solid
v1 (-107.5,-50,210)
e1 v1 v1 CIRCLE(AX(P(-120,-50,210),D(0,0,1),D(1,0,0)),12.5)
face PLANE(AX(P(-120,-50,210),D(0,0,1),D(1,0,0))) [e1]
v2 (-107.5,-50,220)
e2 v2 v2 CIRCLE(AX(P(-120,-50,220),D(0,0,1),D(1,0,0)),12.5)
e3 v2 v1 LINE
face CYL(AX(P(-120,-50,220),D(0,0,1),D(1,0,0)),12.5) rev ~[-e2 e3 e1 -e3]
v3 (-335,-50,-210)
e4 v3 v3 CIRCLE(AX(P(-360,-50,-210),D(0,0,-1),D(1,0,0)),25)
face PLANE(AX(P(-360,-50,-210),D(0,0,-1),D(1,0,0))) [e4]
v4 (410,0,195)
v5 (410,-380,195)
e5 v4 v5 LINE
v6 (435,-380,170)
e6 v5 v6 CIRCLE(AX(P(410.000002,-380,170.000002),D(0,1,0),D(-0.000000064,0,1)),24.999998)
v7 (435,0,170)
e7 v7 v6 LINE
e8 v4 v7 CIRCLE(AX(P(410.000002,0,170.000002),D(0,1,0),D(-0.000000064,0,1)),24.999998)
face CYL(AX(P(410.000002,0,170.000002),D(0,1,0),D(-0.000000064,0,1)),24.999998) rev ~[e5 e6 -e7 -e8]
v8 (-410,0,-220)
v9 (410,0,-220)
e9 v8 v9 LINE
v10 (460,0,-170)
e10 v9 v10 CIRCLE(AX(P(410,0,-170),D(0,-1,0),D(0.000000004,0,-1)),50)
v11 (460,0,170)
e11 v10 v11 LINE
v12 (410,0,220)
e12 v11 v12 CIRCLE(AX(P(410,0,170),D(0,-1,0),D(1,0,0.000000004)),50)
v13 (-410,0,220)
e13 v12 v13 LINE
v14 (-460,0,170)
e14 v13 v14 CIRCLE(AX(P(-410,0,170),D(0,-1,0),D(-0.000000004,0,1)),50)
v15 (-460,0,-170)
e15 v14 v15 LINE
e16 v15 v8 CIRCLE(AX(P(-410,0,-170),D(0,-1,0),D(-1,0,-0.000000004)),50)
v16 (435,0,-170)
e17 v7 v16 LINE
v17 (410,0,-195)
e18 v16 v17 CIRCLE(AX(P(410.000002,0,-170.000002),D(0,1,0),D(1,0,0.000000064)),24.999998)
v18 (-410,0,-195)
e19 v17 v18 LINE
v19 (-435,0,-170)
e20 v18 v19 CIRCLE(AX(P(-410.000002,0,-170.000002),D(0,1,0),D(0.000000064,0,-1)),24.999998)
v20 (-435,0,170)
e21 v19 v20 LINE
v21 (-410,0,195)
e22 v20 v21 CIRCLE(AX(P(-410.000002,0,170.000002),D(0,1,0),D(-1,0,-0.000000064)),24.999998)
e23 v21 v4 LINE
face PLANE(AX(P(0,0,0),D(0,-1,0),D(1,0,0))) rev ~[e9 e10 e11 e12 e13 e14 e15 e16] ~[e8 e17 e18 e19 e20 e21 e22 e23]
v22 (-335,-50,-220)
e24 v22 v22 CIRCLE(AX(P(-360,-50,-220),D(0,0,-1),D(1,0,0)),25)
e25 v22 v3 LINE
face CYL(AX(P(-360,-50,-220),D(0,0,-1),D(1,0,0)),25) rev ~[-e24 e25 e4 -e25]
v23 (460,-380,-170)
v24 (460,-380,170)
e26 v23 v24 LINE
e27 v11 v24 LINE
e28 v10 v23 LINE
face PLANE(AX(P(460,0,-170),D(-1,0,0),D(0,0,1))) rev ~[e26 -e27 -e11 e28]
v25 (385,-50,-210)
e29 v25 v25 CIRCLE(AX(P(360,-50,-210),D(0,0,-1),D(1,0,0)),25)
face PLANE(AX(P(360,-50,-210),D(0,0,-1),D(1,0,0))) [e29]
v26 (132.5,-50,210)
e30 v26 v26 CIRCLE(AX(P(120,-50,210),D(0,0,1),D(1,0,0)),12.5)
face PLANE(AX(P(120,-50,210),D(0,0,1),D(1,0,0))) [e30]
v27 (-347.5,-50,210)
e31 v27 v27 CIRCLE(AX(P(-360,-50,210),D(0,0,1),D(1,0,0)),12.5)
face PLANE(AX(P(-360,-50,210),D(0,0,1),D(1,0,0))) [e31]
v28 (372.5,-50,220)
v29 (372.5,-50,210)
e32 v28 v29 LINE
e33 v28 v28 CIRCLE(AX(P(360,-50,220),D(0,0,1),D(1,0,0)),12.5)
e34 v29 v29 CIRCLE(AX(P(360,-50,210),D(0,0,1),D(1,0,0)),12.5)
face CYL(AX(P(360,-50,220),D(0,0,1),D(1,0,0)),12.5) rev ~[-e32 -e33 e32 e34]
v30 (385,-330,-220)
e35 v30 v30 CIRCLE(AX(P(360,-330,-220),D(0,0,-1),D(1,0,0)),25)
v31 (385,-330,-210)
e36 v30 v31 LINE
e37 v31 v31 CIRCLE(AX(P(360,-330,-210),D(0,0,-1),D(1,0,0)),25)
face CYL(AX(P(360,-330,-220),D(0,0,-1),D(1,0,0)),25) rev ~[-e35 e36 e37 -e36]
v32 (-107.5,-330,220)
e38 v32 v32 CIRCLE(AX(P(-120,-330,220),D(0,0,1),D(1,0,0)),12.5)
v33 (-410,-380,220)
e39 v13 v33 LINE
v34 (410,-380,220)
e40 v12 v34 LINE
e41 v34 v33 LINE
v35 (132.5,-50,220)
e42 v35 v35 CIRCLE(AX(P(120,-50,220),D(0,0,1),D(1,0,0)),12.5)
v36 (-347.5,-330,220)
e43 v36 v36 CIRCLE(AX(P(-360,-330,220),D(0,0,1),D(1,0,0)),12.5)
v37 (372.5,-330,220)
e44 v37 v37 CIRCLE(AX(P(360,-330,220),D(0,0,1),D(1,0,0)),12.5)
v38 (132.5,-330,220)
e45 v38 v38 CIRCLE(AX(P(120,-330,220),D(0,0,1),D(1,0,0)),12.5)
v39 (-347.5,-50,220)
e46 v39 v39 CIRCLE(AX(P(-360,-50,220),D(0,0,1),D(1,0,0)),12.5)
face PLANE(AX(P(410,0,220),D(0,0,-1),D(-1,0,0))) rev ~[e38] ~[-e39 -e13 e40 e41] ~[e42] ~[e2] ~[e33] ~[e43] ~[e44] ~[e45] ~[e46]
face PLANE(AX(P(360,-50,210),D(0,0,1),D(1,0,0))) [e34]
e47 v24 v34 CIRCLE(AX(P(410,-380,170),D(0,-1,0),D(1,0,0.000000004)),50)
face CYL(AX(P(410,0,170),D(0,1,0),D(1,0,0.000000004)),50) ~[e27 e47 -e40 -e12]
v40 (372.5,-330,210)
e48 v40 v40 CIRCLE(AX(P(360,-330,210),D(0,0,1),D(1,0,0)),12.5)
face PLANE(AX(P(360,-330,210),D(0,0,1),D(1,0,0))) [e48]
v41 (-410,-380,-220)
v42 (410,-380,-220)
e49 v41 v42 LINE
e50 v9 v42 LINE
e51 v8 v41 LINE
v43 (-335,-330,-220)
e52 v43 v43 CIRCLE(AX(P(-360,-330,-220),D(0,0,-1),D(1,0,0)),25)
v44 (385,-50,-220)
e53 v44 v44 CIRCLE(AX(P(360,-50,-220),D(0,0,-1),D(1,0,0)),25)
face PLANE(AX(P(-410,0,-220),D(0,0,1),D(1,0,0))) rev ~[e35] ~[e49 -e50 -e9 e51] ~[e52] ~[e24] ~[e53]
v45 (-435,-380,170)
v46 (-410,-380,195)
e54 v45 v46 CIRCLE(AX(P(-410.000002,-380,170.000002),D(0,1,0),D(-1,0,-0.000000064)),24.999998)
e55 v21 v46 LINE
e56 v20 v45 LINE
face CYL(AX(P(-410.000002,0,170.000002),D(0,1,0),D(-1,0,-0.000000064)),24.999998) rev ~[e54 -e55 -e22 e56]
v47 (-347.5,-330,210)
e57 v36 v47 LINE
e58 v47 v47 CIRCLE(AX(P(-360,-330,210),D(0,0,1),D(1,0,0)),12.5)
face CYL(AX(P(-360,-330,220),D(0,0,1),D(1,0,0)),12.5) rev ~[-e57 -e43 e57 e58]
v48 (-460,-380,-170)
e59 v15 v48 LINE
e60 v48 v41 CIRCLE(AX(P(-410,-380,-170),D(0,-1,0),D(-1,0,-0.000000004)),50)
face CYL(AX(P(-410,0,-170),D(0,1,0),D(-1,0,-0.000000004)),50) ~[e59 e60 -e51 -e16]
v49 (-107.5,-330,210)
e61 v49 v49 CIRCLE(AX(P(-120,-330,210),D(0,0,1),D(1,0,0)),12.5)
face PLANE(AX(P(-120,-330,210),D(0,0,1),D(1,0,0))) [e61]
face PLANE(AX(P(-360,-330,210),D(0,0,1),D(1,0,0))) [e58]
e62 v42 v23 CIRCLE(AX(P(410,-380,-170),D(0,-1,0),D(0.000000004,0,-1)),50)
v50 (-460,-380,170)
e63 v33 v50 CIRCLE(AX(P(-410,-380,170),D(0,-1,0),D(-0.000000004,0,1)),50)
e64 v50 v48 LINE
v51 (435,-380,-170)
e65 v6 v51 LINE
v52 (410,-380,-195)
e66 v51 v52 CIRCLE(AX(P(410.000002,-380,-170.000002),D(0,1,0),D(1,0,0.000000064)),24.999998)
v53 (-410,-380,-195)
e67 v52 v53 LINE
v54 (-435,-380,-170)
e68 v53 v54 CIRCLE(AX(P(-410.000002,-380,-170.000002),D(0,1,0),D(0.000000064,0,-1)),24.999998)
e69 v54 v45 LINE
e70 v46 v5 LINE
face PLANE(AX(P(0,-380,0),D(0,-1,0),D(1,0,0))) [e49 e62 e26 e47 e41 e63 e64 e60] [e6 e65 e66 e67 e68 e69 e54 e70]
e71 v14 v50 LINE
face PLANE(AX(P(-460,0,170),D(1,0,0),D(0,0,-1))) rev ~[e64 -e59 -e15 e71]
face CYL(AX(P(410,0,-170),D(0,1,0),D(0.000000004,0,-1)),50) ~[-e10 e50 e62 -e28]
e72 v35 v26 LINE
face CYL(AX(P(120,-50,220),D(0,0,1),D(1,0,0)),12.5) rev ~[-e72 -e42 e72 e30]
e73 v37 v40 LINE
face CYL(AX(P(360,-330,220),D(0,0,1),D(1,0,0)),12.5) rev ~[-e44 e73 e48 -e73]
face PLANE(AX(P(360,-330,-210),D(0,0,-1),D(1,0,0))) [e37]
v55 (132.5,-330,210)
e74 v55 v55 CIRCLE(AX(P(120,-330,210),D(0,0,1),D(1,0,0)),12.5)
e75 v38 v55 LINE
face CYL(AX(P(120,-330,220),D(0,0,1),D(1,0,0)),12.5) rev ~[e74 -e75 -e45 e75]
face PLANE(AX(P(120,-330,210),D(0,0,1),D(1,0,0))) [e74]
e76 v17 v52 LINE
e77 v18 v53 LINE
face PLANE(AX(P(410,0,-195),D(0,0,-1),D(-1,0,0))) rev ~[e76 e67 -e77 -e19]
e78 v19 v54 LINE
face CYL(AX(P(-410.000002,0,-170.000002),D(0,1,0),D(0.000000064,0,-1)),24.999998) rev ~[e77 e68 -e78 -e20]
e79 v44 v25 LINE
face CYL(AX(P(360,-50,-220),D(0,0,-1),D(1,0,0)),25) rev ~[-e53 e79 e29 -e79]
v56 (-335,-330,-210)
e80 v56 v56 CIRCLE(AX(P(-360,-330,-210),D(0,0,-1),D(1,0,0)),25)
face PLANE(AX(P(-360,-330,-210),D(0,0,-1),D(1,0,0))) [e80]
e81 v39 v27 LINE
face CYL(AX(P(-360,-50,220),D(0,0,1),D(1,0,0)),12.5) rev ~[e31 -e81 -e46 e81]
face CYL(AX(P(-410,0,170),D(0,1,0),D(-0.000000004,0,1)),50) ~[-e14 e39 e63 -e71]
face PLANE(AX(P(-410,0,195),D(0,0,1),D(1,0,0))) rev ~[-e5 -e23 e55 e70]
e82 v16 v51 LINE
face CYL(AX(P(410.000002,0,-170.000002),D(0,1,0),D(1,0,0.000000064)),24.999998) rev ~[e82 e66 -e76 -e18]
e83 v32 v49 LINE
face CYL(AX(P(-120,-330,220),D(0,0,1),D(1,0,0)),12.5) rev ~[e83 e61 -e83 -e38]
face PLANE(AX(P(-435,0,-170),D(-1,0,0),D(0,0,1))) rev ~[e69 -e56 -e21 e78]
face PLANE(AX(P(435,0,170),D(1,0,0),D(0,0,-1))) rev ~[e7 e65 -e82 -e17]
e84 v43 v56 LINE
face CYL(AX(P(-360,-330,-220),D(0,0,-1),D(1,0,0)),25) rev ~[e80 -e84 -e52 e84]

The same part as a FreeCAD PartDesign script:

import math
import FreeCAD as App
import Part
import Sketcher

V = App.Vector

doc = App.newDocument("Part")
body = doc.addObject("PartDesign::Body", "Body")

# Sketch on XZ plane
sketch1 = body.newObject("Sketcher::SketchObject", "Sketch")
sketch1.AttachmentSupport = (doc.getObject("XZ_Plane"), [""])
sketch1.MapMode = "FlatFace"
sketch1.addGeometry(Part.LineSegment(V(-410, -220, 0), V(410, -220, 0)), False)
sketch1.addGeometry(Part.ArcOfCircle(Part.Circle(V(410, -170, 0), V(0, 0, 1), 50), math.radians(-90), math.radians(0)), False)
sketch1.addGeometry(Part.LineSegment(V(460, -170, 0), V(460, 170, 0)), False)
sketch1.addGeometry(Part.ArcOfCircle(Part.Circle(V(410, 170, 0), V(0, 0, 1), 50), math.radians(0), math.radians(90)), False)
sketch1.addGeometry(Part.LineSegment(V(410, 220, 0), V(-410, 220, 0)), False)
sketch1.addGeometry(Part.ArcOfCircle(Part.Circle(V(-410, 170, 0), V(0, 0, 1), 50), math.radians(90), math.radians(180)), False)
sketch1.addGeometry(Part.LineSegment(V(-460, 170, 0), V(-460, -170, 0)), False)
sketch1.addGeometry(Part.ArcOfCircle(Part.Circle(V(-410, -170, 0), V(0, 0, 1), 50), math.radians(-180), math.radians(-90)), False)
sketch1.addGeometry(Part.LineSegment(V(435, 170, 0), V(435, -170, 0)), False)
sketch1.addGeometry(Part.ArcOfCircle(Part.Circle(V(410, -170, 0), V(0, 0, 1), 25), math.radians(-90), math.radians(0)), False)
sketch1.addGeometry(Part.LineSegment(V(410, -195, 0), V(-410, -195, 0)), False)
sketch1.addGeometry(Part.ArcOfCircle(Part.Circle(V(-410, -170, 0), V(0, 0, 1), 25), math.radians(180), math.radians(270)), False)
sketch1.addGeometry(Part.LineSegment(V(-435, -170, 0), V(-435, 170, 0)), False)
sketch1.addGeometry(Part.ArcOfCircle(Part.Circle(V(-410, 170, 0), V(0, 0, 1), 25), math.radians(90), math.radians(180)), False)
sketch1.addGeometry(Part.LineSegment(V(-410, 195, 0), V(410, 195, 0)), False)
sketch1.addGeometry(Part.ArcOfCircle(Part.Circle(V(410, 170, 0), V(0, 0, 1), 25), math.radians(0), math.radians(90)), False)
sketch1.addConstraint(Sketcher.Constraint("Tangent", 0, 2, 1, 1))
sketch1.addConstraint(Sketcher.Constraint("Tangent", 1, 2, 2, 1))
sketch1.addConstraint(Sketcher.Constraint("Tangent", 2, 2, 3, 1))
sketch1.addConstraint(Sketcher.Constraint("Tangent", 3, 2, 4, 1))
sketch1.addConstraint(Sketcher.Constraint("Tangent", 4, 2, 5, 1))
sketch1.addConstraint(Sketcher.Constraint("Tangent", 5, 2, 6, 1))
sketch1.addConstraint(Sketcher.Constraint("Tangent", 6, 2, 7, 1))
sketch1.addConstraint(Sketcher.Constraint("Tangent", 7, 2, 0, 1))
sketch1.addConstraint(Sketcher.Constraint("Tangent", 8, 2, 9, 2))
sketch1.addConstraint(Sketcher.Constraint("Tangent", 9, 1, 10, 1))
sketch1.addConstraint(Sketcher.Constraint("Tangent", 10, 2, 11, 2))
sketch1.addConstraint(Sketcher.Constraint("Tangent", 11, 1, 12, 1))
sketch1.addConstraint(Sketcher.Constraint("Tangent", 12, 2, 13, 2))
sketch1.addConstraint(Sketcher.Constraint("Tangent", 13, 1, 14, 1))
sketch1.addConstraint(Sketcher.Constraint("Tangent", 14, 2, 15, 2))
sketch1.addConstraint(Sketcher.Constraint("Tangent", 15, 1, 8, 1))
sketch1.addConstraint(Sketcher.Constraint("Horizontal", 0))
sketch1.addConstraint(Sketcher.Constraint("Vertical", 2))
sketch1.addConstraint(Sketcher.Constraint("Horizontal", 4))
sketch1.addConstraint(Sketcher.Constraint("Vertical", 6))
sketch1.addConstraint(Sketcher.Constraint("Vertical", 8))
sketch1.addConstraint(Sketcher.Constraint("Horizontal", 10))
sketch1.addConstraint(Sketcher.Constraint("Vertical", 12))
sketch1.addConstraint(Sketcher.Constraint("Horizontal", 14))
sketch1.addConstraint(Sketcher.Constraint("Coincident", 9, 3, 1, 3))
sketch1.addConstraint(Sketcher.Constraint("Coincident", 11, 3, 7, 3))
sketch1.addConstraint(Sketcher.Constraint("Coincident", 13, 3, 5, 3))
sketch1.addConstraint(Sketcher.Constraint("Equal", 1, 3))
sketch1.addConstraint(Sketcher.Constraint("Equal", 3, 5))
sketch1.addConstraint(Sketcher.Constraint("Equal", 5, 7))
sketch1.addConstraint(Sketcher.Constraint("Equal", 13, 15))
sketch1.addConstraint(Sketcher.Constraint("Symmetric", 1, 3, 5, 3, -1, 1))
sketch1.addConstraint(Sketcher.Constraint("Radius", 1, 50.0))
sketch1.addConstraint(Sketcher.Constraint("Radius", 9, 24.999998))
sketch1.addConstraint(Sketcher.Constraint("DistanceX", 0, 1, 0, 2, 820.0))
sketch1.addConstraint(Sketcher.Constraint("DistanceY", 2, 1, 2, 2, 340.0))
pad1 = body.newObject("PartDesign::Pad", "Pad")
pad1.Profile = sketch1
pad1.Length = 380

# Sketch on XY plane
sketch2 = body.newObject("Sketcher::SketchObject", "Sketch001")
sketch2.AttachmentSupport = (doc.getObject("XY_Plane"), [""])
sketch2.MapMode = "FlatFace"
sketch2.AttachmentOffset = App.Placement(V(0, 0, -220), App.Rotation())
sketch2.addGeometry(Part.Circle(V(-360, -50, 0), V(0, 0, 1), 25), False)
sketch2.addGeometry(Part.Circle(V(-360, -330, 0), V(0, 0, 1), 25), False)
sketch2.addGeometry(Part.Circle(V(360, -330, 0), V(0, 0, 1), 25), False)
sketch2.addGeometry(Part.Circle(V(360, -50, 0), V(0, 0, 1), 25), False)
sketch2.addConstraint(Sketcher.Constraint("Equal", 0, 1))
sketch2.addConstraint(Sketcher.Constraint("Equal", 1, 2))
sketch2.addConstraint(Sketcher.Constraint("Equal", 2, 3))
sketch2.addConstraint(Sketcher.Constraint("Symmetric", 1, 3, 2, 3, -2))
sketch2.addConstraint(Sketcher.Constraint("Symmetric", 0, 3, 3, 3, -2))
sketch2.addConstraint(Sketcher.Constraint("Vertical", 0, 3, 1, 3))
sketch2.addConstraint(Sketcher.Constraint("Diameter", 0, 50.0))
sketch2.addConstraint(Sketcher.Constraint("DistanceX", 0, 3, -1, 1, 360.0))
sketch2.addConstraint(Sketcher.Constraint("DistanceY", 0, 3, -1, 1, 50.0))
sketch2.addConstraint(Sketcher.Constraint("DistanceY", 1, 3, -1, 1, 330.0))
pocket1 = body.newObject("PartDesign::Pocket", "Pocket")
pocket1.Profile = sketch2
pocket1.Length = 10
pocket1.Reversed = True

# Sketch on XY plane
sketch3 = body.newObject("Sketcher::SketchObject", "Sketch002")
sketch3.AttachmentSupport = (doc.getObject("XY_Plane"), [""])
sketch3.MapMode = "FlatFace"
sketch3.AttachmentOffset = App.Placement(V(0, 0, 220), App.Rotation())
sketch3.addGeometry(Part.Circle(V(-360, -50, 0), V(0, 0, 1), 12), False)
sketch3.addGeometry(Part.Circle(V(-360, -330, 0), V(0, 0, 1), 12), False)
sketch3.addGeometry(Part.Circle(V(-120, -330, 0), V(0, 0, 1), 12), False)
sketch3.addGeometry(Part.Circle(V(-120, -50, 0), V(0, 0, 1), 12), False)
sketch3.addGeometry(Part.Circle(V(120, -330, 0), V(0, 0, 1), 12), False)
sketch3.addGeometry(Part.Circle(V(120, -50, 0), V(0, 0, 1), 12), False)
sketch3.addGeometry(Part.Circle(V(360, -330, 0), V(0, 0, 1), 12), False)
sketch3.addGeometry(Part.Circle(V(360, -50, 0), V(0, 0, 1), 12), False)
sketch3.addConstraint(Sketcher.Constraint("Equal", 0, 1))
sketch3.addConstraint(Sketcher.Constraint("Equal", 1, 2))
sketch3.addConstraint(Sketcher.Constraint("Equal", 2, 3))
sketch3.addConstraint(Sketcher.Constraint("Equal", 3, 4))
sketch3.addConstraint(Sketcher.Constraint("Equal", 4, 5))
sketch3.addConstraint(Sketcher.Constraint("Equal", 5, 6))
sketch3.addConstraint(Sketcher.Constraint("Equal", 6, 7))
sketch3.addConstraint(Sketcher.Constraint("Symmetric", 2, 3, 4, 3, -2))
sketch3.addConstraint(Sketcher.Constraint("Symmetric", 3, 3, 5, 3, -2))
sketch3.addConstraint(Sketcher.Constraint("Symmetric", 1, 3, 6, 3, -2))
sketch3.addConstraint(Sketcher.Constraint("Symmetric", 0, 3, 7, 3, -2))
sketch3.addConstraint(Sketcher.Constraint("Horizontal", 1, 3, 2, 3))
sketch3.addConstraint(Sketcher.Constraint("Horizontal", 0, 3, 3, 3))
sketch3.addConstraint(Sketcher.Constraint("Vertical", 0, 3, 1, 3))
sketch3.addConstraint(Sketcher.Constraint("Vertical", 2, 3, 3, 3))
sketch3.addConstraint(Sketcher.Constraint("Diameter", 0, 25.0))
sketch3.addConstraint(Sketcher.Constraint("DistanceX", 0, 3, -1, 1, 360.0))
sketch3.addConstraint(Sketcher.Constraint("DistanceY", 0, 3, -1, 1, 50.0))
sketch3.addConstraint(Sketcher.Constraint("DistanceY", 1, 3, -1, 1, 330.0))
sketch3.addConstraint(Sketcher.Constraint("DistanceX", 2, 3, -1, 1, 120.0))
pocket2 = body.newObject("PartDesign::Pocket", "Pocket001")
pocket2.Profile = sketch3
pocket2.Length = 10

doc.recompute()
